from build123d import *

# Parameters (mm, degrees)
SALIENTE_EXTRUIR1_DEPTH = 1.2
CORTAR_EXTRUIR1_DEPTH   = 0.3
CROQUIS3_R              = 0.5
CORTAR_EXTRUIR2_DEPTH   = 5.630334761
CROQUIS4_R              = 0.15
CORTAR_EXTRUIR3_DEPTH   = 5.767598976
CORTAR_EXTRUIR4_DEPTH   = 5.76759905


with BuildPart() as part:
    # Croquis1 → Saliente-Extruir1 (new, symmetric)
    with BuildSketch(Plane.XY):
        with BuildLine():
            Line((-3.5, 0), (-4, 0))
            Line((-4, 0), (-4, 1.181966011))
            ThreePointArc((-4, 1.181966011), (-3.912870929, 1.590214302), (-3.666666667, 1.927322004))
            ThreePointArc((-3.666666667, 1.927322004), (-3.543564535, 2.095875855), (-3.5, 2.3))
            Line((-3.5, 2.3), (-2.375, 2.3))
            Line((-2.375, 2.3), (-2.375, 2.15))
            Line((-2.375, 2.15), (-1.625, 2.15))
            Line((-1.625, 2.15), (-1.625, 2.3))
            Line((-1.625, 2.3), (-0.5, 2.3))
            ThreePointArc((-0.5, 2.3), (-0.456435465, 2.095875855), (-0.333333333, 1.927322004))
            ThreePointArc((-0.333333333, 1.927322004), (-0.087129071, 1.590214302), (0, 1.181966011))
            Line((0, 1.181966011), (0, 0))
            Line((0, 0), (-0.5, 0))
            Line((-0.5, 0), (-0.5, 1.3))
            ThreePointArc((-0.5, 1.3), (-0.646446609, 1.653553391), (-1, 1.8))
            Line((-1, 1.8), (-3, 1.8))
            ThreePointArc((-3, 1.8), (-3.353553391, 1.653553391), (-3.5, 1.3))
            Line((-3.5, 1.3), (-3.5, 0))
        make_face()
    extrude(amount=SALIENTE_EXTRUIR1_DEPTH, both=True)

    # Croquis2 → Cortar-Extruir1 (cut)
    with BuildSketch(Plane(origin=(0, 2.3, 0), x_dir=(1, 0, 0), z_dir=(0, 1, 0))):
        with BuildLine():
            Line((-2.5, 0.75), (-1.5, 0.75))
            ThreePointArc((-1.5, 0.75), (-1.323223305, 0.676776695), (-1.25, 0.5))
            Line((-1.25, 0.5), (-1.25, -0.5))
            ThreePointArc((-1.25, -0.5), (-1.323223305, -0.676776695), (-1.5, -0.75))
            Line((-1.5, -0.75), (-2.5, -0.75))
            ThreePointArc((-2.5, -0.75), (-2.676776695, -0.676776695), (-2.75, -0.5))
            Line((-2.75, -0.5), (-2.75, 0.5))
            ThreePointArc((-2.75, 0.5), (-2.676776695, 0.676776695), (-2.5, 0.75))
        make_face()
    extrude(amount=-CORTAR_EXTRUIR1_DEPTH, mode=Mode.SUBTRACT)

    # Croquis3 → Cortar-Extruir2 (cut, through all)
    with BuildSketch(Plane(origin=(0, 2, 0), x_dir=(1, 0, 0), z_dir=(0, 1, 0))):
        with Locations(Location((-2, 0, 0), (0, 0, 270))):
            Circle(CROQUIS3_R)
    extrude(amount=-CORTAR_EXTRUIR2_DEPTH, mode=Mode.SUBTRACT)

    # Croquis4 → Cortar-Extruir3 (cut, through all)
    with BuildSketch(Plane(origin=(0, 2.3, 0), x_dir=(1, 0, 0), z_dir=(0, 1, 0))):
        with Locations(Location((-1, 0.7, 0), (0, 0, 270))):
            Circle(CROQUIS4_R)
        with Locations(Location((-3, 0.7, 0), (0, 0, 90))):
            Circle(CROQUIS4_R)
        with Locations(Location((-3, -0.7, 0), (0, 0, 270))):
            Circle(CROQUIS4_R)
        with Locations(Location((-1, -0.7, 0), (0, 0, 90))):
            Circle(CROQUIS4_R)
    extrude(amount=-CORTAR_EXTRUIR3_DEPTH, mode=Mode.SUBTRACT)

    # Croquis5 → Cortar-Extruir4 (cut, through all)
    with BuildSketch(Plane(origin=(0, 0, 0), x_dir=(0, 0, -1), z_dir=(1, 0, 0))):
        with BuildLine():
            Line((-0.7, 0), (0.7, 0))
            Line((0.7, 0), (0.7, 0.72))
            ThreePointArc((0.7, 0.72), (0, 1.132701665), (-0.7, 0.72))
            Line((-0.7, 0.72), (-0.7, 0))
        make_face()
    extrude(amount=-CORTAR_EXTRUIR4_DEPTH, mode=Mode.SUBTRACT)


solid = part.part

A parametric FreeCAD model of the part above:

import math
import FreeCAD as App
import Part
import Sketcher
from FreeCAD import Vector

doc = App.newDocument("Part")
params = doc.addObject("Spreadsheet::Sheet", "Params")
for row, (alias, value) in enumerate([
    ("sketch1_radius", "1 mm"),
    ("sketch1_width", "2 mm"),
    ("sketch1_height", "1.3 mm"),
    ("sketch1_width2", "0.75 mm"),
    ("sketch1_height2", "0.15 mm"),
    ("pad1_length", "2.4 mm"),
    ("sketch2_width", "1 mm"),
    ("sketch2_radius", "0.25 mm"),
    ("pocket1_length", "0.3 mm"),
    ("sketch3_diameter", "1 mm"),
    ("sketch4_diameter", "0.3 mm"),
    ("sketch5_radius", "0.8 mm"),
    ("sketch5_height", "1.4 mm"),
    ("sketch5_width", "0.72 mm"),
], start=1):
    params.set(f"A{row}", alias)
    params.set(f"B{row}", "=" + value)
    params.setAlias(f"B{row}", alias)

body = doc.addObject("PartDesign::Body", "Body")

sketch1 = body.newObject("Sketcher::SketchObject", "Sketch")
sketch1.AttachmentSupport = (doc.getObject("XY_Plane"), [""])
sketch1.MapMode = "FlatFace"
sketch1.addGeometry([
    Part.LineSegment(Vector(-4, 0, 0), Vector(-3.5, 0, 0)),
    Part.LineSegment(Vector(-3.5, 0, 0), Vector(-3.5, 1.3, 0)),
    Part.ArcOfCircle(Part.Circle(Vector(-3, 1.3, 0), Vector(0, 0, 1), 0.5), math.radians(90), math.radians(180)),
    Part.LineSegment(Vector(-3, 1.8, 0), Vector(-1, 1.8, 0)),
    Part.ArcOfCircle(Part.Circle(Vector(-1, 1.3, 0), Vector(0, 0, 1), 0.5), math.radians(0), math.radians(90)),
    Part.LineSegment(Vector(-0.5, 1.3, 0), Vector(-0.5, 0, 0)),
    Part.LineSegment(Vector(-0.5, 0, 0), Vector(0, 0, 0)),
    Part.LineSegment(Vector(0, 0, 0), Vector(0, 1.181966, 0)),
    Part.ArcOfCircle(Part.Circle(Vector(-1, 1.181966, 0), Vector(0, 0, 1), 1), math.radians(0), math.radians(48.189685)),
    Part.ArcOfCircle(Part.Circle(Vector(0, 2.3, 0), Vector(0, 0, 1), 0.5), math.radians(180), math.radians(228.189685)),
    Part.LineSegment(Vector(-0.5, 2.3, 0), Vector(-1.625, 2.3, 0)),
    Part.LineSegment(Vector(-1.625, 2.3, 0), Vector(-1.625, 2.15, 0)),
    Part.LineSegment(Vector(-1.625, 2.15, 0), Vector(-2.375, 2.15, 0)),
    Part.LineSegment(Vector(-2.375, 2.15, 0), Vector(-2.375, 2.3, 0)),
    Part.LineSegment(Vector(-2.375, 2.3, 0), Vector(-3.5, 2.3, 0)),
    Part.ArcOfCircle(Part.Circle(Vector(-4, 2.3, 0), Vector(0, 0, 1), 0.5), math.radians(-48.189685), math.radians(0)),
    Part.ArcOfCircle(Part.Circle(Vector(-3, 1.181966, 0), Vector(0, 0, 1), 1), math.radians(131.810315), math.radians(180)),
    Part.LineSegment(Vector(-4, 1.181966, 0), Vector(-4, 0, 0)),
], False)
sketch1.addConstraint([
    Sketcher.Constraint("Coincident", 0, 2, 1, 1),
    Sketcher.Constraint("Tangent", 1, 2, 2, 2),
    Sketcher.Constraint("Tangent", 2, 1, 3, 1),
    Sketcher.Constraint("Tangent", 3, 2, 4, 2),
    Sketcher.Constraint("Tangent", 4, 1, 5, 1),
    Sketcher.Constraint("Coincident", 5, 2, 6, 1),
    Sketcher.Constraint("Coincident", 6, 2, 7, 1),
    Sketcher.Constraint("Tangent", 7, 2, 8, 1),
    Sketcher.Constraint("Tangent", 8, 2, 9, 2),
    Sketcher.Constraint("Coincident", 9, 1, 10, 1),
    Sketcher.Constraint("Coincident", 10, 2, 11, 1),
    Sketcher.Constraint("Coincident", 11, 2, 12, 1),
    Sketcher.Constraint("Coincident", 12, 2, 13, 1),
    Sketcher.Constraint("Coincident", 13, 2, 14, 1),
    Sketcher.Constraint("Coincident", 14, 2, 15, 2),
    Sketcher.Constraint("Tangent", 15, 1, 16, 1),
    Sketcher.Constraint("Tangent", 16, 2, 17, 1),
    Sketcher.Constraint("Coincident", 17, 2, 0, 1),
    Sketcher.Constraint("Horizontal", 0),
    Sketcher.Constraint("Vertical", 1),
    Sketcher.Constraint("Horizontal", 3),
    Sketcher.Constraint("Vertical", 5),
    Sketcher.Constraint("Horizontal", 6),
    Sketcher.Constraint("Vertical", 7),
    Sketcher.Constraint("Horizontal", 10),
    Sketcher.Constraint("Vertical", 11),
    Sketcher.Constraint("Horizontal", 12),
    Sketcher.Constraint("Vertical", 13),
    Sketcher.Constraint("Horizontal", 14),
    Sketcher.Constraint("Vertical", 17),
    Sketcher.Constraint("Coincident", 6, 2, -1, 1),
    Sketcher.Constraint("Equal", 2, 4),
    Sketcher.Constraint("Equal", 4, 9),
    Sketcher.Constraint("Equal", 9, 15),
    Sketcher.Constraint("Equal", 8, 16),
    Sketcher.Constraint("PointOnObject", 9, 3, -2),
    Sketcher.Constraint("PointOnObject", 0, 2, -1),
    Sketcher.Constraint("Horizontal", 9, 3, 15, 3),
    Sketcher.Constraint("Horizontal", 8, 3, 16, 3),
    Sketcher.Constraint("Horizontal", 15, 3, 9, 1),
    Sketcher.Constraint("Horizontal", 10, 2, 13, 2),
    Sketcher.Constraint("Vertical", 4, 3, 8, 3),
    Sketcher.Constraint("Vertical", 2, 3, 16, 3),
    Sketcher.Constraint("Vertical", 5, 2, 9, 1),
    Sketcher.Constraint("Equal", 10, 14),
    Sketcher.Constraint("Radius", 8, 1.0),
    Sketcher.Constraint("DistanceX", 3, 1, 3, 2, 2.0),
    Sketcher.Constraint("DistanceY", 1, 1, 1, 2, 1.3),
    Sketcher.Constraint("DistanceY", 4, 3, 9, 3, 1.0),
    Sketcher.Constraint("DistanceX", 12, 2, 12, 1, 0.75),
    Sketcher.Constraint("DistanceY", 11, 2, 11, 1, 0.15),
])
sketch1.setExpression("Constraints[45]", "Params.sketch1_radius")
sketch1.setExpression("Constraints[46]", "Params.sketch1_width")
sketch1.setExpression("Constraints[47]", "Params.sketch1_height")
sketch1.setExpression("Constraints[49]", "Params.sketch1_width2")
sketch1.setExpression("Constraints[50]", "Params.sketch1_height2")
pad1 = body.newObject("PartDesign::Pad", "Pad")
pad1.Profile = sketch1
pad1.setExpression("Length", "Params.pad1_length")
pad1.Midplane = True

sketch2 = body.newObject("Sketcher::SketchObject", "Sketch001")
sketch2.AttachmentSupport = (doc.getObject("XZ_Plane"), [""])
sketch2.MapMode = "FlatFace"
sketch2.AttachmentOffset = App.Placement(Vector(0, 0, -2.3), App.Rotation())
sketch2.addGeometry([
    Part.LineSegment(Vector(-1.5, -0.75, 0), Vector(-2.5, -0.75, 0)),
    Part.ArcOfCircle(Part.Circle(Vector(-2.5, -0.5, 0), Vector(0, 0, 1), 0.25), math.radians(-180), math.radians(-90)),
    Part.LineSegment(Vector(-2.75, -0.5, 0), Vector(-2.75, 0.5, 0)),
    Part.ArcOfCircle(Part.Circle(Vector(-2.5, 0.5, 0), Vector(0, 0, 1), 0.25), math.radians(90), math.radians(180)),
    Part.LineSegment(Vector(-2.5, 0.75, 0), Vector(-1.5, 0.75, 0)),
    Part.ArcOfCircle(Part.Circle(Vector(-1.5, 0.5, 0), Vector(0, 0, 1), 0.25), math.radians(0), math.radians(90)),
    Part.LineSegment(Vector(-1.25, 0.5, 0), Vector(-1.25, -0.5, 0)),
    Part.ArcOfCircle(Part.Circle(Vector(-1.5, -0.5, 0), Vector(0, 0, 1), 0.25), math.radians(-90), math.radians(0)),
], False)
sketch2.addConstraint([
    Sketcher.Constraint("Tangent", 0, 2, 1, 2),
    Sketcher.Constraint("Tangent", 1, 1, 2, 1),
    Sketcher.Constraint("Tangent", 2, 2, 3, 2),
    Sketcher.Constraint("Tangent", 3, 1, 4, 1),
    Sketcher.Constraint("Tangent", 4, 2, 5, 2),
    Sketcher.Constraint("Tangent", 5, 1, 6, 1),
    Sketcher.Constraint("Tangent", 6, 2, 7, 2),
    Sketcher.Constraint("Tangent", 7, 1, 0, 1),
    Sketcher.Constraint("Horizontal", 0),
    Sketcher.Constraint("Vertical", 2),
    Sketcher.Constraint("Horizontal", 4),
    Sketcher.Constraint("Vertical", 6),
    Sketcher.Constraint("Equal", 1, 3),
    Sketcher.Constraint("Equal", 3, 5),
    Sketcher.Constraint("Equal", 5, 7),
    Sketcher.Constraint("Equal", 4, 2),
    Sketcher.Constraint("DistanceX", 0, 2, 0, 1, 1.0),
    Sketcher.Constraint("Radius", 1, 0.25),
    Sketcher.Constraint("DistanceX", 1, 3, -1, 1, 2.5),
    Sketcher.Constraint("DistanceY", 1, 3, -1, 1, 0.5),
])
sketch2.setExpression("Constraints[16]", "Params.sketch2_width")
sketch2.setExpression("Constraints[17]", "Params.sketch2_radius")
pocket1 = body.newObject("PartDesign::Pocket", "Pocket")
pocket1.Profile = sketch2
pocket1.setExpression("Length", "Params.pocket1_length")
pocket1.Reversed = True

sketch3 = body.newObject("Sketcher::SketchObject", "Sketch002")
sketch3.AttachmentSupport = (doc.getObject("XZ_Plane"), [""])
sketch3.MapMode = "FlatFace"
sketch3.AttachmentOffset = App.Placement(Vector(0, 0, -2), App.Rotation())
sketch3.addGeometry(Part.Circle(Vector(-2, 0, 0), Vector(0, 0, 1), 0.5), False)
sketch3.addConstraint([
    Sketcher.Constraint("PointOnObject", 0, 3, -1),
    Sketcher.Constraint("Diameter", 0, 1.0),
    Sketcher.Constraint("DistanceX", 0, 3, -1, 1, 2.0),
])
sketch3.setExpression("Constraints[1]", "Params.sketch3_diameter")
pocket2 = body.newObject("PartDesign::Pocket", "Pocket001")
pocket2.Profile = sketch3
pocket2.Type = "ThroughAll"
pocket2.Reversed = True

sketch4 = body.newObject("Sketcher::SketchObject", "Sketch003")
sketch4.AttachmentSupport = (doc.getObject("XZ_Plane"), [""])
sketch4.MapMode = "FlatFace"
sketch4.AttachmentOffset = App.Placement(Vector(0, 0, -2.3), App.Rotation())
sketch4.addGeometry([
    Part.Circle(Vector(-1, -0.7, 0), Vector(0, 0, 1), 0.15),
    Part.Circle(Vector(-3, -0.7, 0), Vector(0, 0, 1), 0.15),
    Part.Circle(Vector(-3, 0.7, 0), Vector(0, 0, 1), 0.15),
    Part.Circle(Vector(-1, 0.7, 0), Vector(0, 0, 1), 0.15),
], False)
sketch4.addConstraint([
    Sketcher.Constraint("Equal", 0, 1),
    Sketcher.Constraint("Equal", 1, 2),
    Sketcher.Constraint("Equal", 2, 3),
    Sketcher.Constraint("Symmetric", 1, 3, 2, 3, -1),
    Sketcher.Constraint("Symmetric", 0, 3, 3, 3, -1),
    Sketcher.Constraint("Horizontal", 0, 3, 1, 3),
    Sketcher.Constraint("Diameter", 0, 0.3),
    Sketcher.Constraint("DistanceX", 0, 3, -1, 1, 1.0),
    Sketcher.Constraint("DistanceX", 1, 3, -1, 1, 3.0),
    Sketcher.Constraint("DistanceY", 0, 3, -1, 1, 0.7),
])
sketch4.setExpression("Constraints[6]", "Params.sketch4_diameter")
pocket3 = body.newObject("PartDesign::Pocket", "Pocket002")
pocket3.Profile = sketch4
pocket3.Type = "ThroughAll"
pocket3.Reversed = True

sketch5 = body.newObject("Sketcher::SketchObject", "Sketch004")
sketch5.AttachmentSupport = (doc.getObject("YZ_Plane"), [""])
sketch5.MapMode = "FlatFace"
sketch5.addGeometry([
    Part.LineSegment(Vector(0, 0.7, 0), Vector(0, -0.7, 0)),
    Part.LineSegment(Vector(0, -0.7, 0), Vector(0.72, -0.7, 0)),
    Part.ArcOfCircle(Part.Circle(Vector(0.332702, 0, 0), Vector(0, 0, 1), 0.8), math.radians(-61.044976), math.radians(61.044976)),
    Part.LineSegment(Vector(0.72, 0.7, 0), Vector(0, 0.7, 0)),
], False)
sketch5.addConstraint([
    Sketcher.Constraint("Coincident", 0, 2, 1, 1),
    Sketcher.Constraint("Coincident", 1, 2, 2, 1),
    Sketcher.Constraint("Coincident", 2, 2, 3, 1),
    Sketcher.Constraint("Coincident", 3, 2, 0, 1),
    Sketcher.Constraint("Vertical", 0),
    Sketcher.Constraint("Horizontal", 1),
    Sketcher.Constraint("Horizontal", 3),
    Sketcher.Constraint("Symmetric", 0, 2, 3, 2, -1, 1),
    Sketcher.Constraint("PointOnObject", 2, 3, -1),
    Sketcher.Constraint("Radius", 2, 0.8),
    Sketcher.Constraint("DistanceY", 0, 2, 0, 1, 1.4),
    Sketcher.Constraint("DistanceX", 1, 1, 1, 2, 0.72),
])
sketch5.setExpression("Constraints[9]", "Params.sketch5_radius")
sketch5.setExpression("Constraints[10]", "Params.sketch5_height")
sketch5.setExpression("Constraints[11]", "Params.sketch5_width")
pocket4 = body.newObject("PartDesign::Pocket", "Pocket003")
pocket4.Profile = sketch5
pocket4.Type = "ThroughAll"

doc.recompute()
